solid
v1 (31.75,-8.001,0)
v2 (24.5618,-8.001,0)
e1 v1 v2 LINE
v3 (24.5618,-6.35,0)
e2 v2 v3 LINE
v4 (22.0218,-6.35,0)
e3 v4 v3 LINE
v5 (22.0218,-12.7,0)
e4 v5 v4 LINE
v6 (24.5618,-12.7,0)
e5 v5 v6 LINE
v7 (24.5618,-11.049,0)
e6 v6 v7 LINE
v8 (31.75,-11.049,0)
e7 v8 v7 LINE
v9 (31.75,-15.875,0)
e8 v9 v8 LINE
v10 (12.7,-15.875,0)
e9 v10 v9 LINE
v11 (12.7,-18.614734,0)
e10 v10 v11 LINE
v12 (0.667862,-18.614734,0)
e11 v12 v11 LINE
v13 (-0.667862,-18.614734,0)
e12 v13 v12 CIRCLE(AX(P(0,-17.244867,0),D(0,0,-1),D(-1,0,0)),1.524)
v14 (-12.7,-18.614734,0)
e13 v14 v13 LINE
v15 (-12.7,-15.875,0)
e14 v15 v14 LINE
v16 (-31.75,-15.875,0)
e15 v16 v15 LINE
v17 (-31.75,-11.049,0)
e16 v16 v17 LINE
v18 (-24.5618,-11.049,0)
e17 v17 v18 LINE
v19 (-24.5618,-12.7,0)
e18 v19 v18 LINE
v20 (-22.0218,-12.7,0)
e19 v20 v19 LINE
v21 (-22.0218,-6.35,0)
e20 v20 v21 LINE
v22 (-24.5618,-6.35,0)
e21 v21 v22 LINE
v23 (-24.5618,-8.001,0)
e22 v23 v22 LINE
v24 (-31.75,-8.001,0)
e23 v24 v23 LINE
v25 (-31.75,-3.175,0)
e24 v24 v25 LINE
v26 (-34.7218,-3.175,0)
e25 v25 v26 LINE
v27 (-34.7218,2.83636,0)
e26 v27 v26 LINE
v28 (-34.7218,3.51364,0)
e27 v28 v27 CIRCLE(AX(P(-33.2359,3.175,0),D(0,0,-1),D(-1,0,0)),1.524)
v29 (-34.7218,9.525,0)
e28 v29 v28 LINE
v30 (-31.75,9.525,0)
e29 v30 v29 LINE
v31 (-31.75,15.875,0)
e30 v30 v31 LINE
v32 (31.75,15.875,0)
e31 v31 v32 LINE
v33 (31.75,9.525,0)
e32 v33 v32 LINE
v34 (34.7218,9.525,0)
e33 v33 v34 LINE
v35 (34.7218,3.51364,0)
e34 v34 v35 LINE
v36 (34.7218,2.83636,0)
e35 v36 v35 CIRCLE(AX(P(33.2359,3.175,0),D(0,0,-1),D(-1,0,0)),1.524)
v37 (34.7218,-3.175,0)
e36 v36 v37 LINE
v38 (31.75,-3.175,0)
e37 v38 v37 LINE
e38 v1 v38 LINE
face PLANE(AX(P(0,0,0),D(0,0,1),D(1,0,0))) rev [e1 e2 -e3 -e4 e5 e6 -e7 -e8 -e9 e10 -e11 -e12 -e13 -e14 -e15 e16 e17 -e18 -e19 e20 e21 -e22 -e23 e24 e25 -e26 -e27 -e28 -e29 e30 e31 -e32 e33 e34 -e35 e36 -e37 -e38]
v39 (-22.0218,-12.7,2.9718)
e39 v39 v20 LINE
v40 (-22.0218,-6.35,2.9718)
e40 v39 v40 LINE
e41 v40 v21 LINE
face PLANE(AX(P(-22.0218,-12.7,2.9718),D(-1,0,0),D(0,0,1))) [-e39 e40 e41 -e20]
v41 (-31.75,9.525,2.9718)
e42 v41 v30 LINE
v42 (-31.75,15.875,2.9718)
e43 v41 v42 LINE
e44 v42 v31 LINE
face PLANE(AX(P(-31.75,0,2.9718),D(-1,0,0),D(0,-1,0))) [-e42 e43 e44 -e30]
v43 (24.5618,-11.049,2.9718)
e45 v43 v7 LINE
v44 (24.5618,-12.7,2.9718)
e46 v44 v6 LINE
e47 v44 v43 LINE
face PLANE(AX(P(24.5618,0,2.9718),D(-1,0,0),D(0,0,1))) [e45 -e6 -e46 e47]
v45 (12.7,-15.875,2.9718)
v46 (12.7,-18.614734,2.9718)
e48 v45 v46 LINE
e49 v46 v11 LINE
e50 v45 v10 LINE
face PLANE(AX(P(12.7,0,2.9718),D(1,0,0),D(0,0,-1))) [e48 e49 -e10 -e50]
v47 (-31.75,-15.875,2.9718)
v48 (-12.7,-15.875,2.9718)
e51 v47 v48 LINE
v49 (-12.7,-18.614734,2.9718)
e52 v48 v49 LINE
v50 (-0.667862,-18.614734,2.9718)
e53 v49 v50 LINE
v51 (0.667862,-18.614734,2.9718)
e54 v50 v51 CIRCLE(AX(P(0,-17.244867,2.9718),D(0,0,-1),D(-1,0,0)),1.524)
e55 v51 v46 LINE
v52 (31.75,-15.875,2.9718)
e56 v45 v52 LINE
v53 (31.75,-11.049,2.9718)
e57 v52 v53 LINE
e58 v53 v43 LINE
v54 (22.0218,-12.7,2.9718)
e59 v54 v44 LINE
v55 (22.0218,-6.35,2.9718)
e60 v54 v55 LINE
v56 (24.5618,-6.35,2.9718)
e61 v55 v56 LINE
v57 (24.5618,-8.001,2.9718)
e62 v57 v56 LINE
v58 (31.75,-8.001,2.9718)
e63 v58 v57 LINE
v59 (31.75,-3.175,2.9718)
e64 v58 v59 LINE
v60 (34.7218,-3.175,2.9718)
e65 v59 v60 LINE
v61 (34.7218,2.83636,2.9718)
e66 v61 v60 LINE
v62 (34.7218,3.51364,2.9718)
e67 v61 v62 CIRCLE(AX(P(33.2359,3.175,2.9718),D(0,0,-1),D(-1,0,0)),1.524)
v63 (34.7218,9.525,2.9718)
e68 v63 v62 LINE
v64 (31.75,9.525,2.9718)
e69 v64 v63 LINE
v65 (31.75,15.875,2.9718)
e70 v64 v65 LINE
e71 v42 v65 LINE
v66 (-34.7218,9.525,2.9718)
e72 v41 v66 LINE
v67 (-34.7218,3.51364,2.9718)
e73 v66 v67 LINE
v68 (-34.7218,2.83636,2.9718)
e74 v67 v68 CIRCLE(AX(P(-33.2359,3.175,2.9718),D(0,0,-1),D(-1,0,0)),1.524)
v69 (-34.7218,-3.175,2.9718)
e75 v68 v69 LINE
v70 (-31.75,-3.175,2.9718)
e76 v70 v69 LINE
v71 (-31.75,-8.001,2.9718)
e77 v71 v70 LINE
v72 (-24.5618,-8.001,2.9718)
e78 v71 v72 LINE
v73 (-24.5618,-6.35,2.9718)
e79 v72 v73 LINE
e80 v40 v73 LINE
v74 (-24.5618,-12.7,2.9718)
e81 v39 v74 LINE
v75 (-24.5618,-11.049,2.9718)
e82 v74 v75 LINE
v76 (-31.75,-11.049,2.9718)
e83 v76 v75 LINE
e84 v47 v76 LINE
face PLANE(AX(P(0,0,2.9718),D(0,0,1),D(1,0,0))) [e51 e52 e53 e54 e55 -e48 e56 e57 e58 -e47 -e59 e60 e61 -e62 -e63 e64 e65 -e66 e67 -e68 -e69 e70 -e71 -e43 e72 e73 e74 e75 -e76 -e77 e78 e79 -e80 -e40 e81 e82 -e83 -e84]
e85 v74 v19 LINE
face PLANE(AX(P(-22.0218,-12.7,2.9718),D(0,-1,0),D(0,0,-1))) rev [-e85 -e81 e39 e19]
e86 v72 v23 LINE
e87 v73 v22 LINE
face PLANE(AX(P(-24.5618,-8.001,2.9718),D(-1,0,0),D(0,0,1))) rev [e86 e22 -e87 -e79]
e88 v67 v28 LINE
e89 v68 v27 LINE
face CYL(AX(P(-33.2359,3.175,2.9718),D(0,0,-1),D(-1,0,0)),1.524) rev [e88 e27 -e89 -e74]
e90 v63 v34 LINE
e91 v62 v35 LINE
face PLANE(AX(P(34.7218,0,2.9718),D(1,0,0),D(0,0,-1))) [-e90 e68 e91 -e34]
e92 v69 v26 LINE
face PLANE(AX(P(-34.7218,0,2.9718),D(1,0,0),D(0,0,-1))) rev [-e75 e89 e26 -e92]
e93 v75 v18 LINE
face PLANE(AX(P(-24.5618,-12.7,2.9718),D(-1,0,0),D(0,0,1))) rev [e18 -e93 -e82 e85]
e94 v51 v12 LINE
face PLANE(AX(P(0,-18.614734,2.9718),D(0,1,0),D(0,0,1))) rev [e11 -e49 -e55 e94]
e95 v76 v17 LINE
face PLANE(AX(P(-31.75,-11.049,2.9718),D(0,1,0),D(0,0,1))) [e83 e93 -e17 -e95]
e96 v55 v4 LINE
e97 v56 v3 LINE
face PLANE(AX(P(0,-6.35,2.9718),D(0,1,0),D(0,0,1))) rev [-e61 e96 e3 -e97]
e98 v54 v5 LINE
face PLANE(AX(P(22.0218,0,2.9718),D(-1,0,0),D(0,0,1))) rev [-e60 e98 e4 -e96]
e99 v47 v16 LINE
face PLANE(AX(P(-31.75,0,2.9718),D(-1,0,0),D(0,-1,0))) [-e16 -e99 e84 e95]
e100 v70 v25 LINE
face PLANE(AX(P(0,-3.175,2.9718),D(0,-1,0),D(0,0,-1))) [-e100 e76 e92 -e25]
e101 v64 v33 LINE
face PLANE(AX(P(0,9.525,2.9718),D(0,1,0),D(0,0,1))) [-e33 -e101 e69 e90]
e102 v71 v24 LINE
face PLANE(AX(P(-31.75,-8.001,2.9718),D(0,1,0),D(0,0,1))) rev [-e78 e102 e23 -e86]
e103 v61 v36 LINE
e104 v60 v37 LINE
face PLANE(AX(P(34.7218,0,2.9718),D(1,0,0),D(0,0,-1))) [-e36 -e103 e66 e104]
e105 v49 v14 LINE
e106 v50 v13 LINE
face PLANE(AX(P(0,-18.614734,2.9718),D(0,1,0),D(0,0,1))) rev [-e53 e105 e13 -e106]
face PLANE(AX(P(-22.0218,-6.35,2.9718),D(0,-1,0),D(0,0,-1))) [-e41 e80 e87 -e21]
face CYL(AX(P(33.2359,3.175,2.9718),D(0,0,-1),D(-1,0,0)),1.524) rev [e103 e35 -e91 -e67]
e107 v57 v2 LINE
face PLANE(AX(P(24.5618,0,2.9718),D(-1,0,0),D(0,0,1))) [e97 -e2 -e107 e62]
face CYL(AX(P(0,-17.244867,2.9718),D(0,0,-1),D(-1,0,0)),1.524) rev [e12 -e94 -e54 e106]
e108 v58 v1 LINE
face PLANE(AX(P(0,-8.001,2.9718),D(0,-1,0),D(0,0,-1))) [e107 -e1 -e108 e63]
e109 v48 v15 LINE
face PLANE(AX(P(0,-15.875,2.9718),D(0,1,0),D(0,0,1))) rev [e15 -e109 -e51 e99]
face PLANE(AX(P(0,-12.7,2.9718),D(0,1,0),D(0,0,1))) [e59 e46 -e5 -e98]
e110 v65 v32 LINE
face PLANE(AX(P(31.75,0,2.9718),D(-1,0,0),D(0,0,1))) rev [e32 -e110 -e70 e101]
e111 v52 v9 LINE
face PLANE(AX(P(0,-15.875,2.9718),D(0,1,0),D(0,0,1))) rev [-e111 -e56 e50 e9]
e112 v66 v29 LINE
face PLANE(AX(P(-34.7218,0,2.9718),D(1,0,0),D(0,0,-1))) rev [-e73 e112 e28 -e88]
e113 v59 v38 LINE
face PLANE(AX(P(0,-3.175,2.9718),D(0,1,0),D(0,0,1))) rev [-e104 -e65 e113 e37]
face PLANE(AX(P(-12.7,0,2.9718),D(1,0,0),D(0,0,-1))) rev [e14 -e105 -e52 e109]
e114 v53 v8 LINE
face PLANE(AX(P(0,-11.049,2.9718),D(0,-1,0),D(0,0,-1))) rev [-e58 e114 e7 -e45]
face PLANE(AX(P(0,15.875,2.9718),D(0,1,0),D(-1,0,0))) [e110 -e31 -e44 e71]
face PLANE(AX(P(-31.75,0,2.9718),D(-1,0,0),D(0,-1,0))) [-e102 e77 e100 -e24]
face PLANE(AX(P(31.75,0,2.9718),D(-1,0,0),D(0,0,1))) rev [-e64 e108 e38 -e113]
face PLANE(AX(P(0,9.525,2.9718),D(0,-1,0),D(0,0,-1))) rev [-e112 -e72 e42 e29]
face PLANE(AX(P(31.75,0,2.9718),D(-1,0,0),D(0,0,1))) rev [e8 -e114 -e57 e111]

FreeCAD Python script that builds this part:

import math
import FreeCAD as App
import Part
import Sketcher
from FreeCAD import Vector
Q = App.Units.Quantity

doc = App.newDocument("Part")
body = doc.addObject("PartDesign::Body", "Body")

# Sketch on XY plane
sketch1 = body.newObject("Sketcher::SketchObject", "Sketch")
sketch1.AttachmentSupport = (doc.getObject("XY_Plane"), [""])
sketch1.MapMode = "FlatFace"
sketch1.addGeometry([
    Part.LineSegment(Vector(-34.7, 9.5, 0), Vector(-34.7, -3.2, 0)),  # 0
    Part.LineSegment(Vector(-34.7, -3.2, 0), Vector(-31.8, -3.2, 0)),  # 1
    Part.LineSegment(Vector(-31.8, -3.2, 0), Vector(-31.8, -15.9, 0)),  # 2
    Part.LineSegment(Vector(-31.8, -15.9, 0), Vector(-12.7, -15.9, 0)),  # 3
    Part.LineSegment(Vector(-12.7, -15.9, 0), Vector(-12.7, -18.6, 0)),  # 4
    Part.LineSegment(Vector(-12.7, -18.6, 0), Vector(12.7, -18.6, 0)),  # 5
    Part.LineSegment(Vector(12.7, -18.6, 0), Vector(12.7, -15.9, 0)),  # 6
    Part.LineSegment(Vector(12.7, -15.9, 0), Vector(31.8, -15.9, 0)),  # 7
    Part.LineSegment(Vector(31.8, -15.9, 0), Vector(31.8, -3.2, 0)),  # 8
    Part.LineSegment(Vector(31.8, -3.2, 0), Vector(34.7, -3.2, 0)),  # 9
    Part.LineSegment(Vector(34.7, -3.2, 0), Vector(34.7, 9.5, 0)),  # 10
    Part.LineSegment(Vector(34.7, 9.5, 0), Vector(31.8, 9.5, 0)),  # 11
    Part.LineSegment(Vector(31.8, 9.5, 0), Vector(31.8, 15.9, 0)),  # 12
    Part.LineSegment(Vector(31.8, 15.9, 0), Vector(-31.8, 15.9, 0)),  # 13
    Part.LineSegment(Vector(-31.8, 15.9, 0), Vector(-31.8, 9.5, 0)),  # 14
    Part.LineSegment(Vector(-31.8, 9.5, 0), Vector(-34.7, 9.5, 0)),  # 15
], False)
sketch1.addConstraint([
    Sketcher.Constraint("Coincident", 0, 2, 1, 1),
    Sketcher.Constraint("Coincident", 1, 2, 2, 1),
    Sketcher.Constraint("Coincident", 2, 2, 3, 1),
    Sketcher.Constraint("Coincident", 3, 2, 4, 1),
    Sketcher.Constraint("Coincident", 4, 2, 5, 1),
    Sketcher.Constraint("Coincident", 5, 2, 6, 1),
    Sketcher.Constraint("Coincident", 6, 2, 7, 1),
    Sketcher.Constraint("Coincident", 7, 2, 8, 1),
    Sketcher.Constraint("Coincident", 8, 2, 9, 1),
    Sketcher.Constraint("Coincident", 9, 2, 10, 1),
    Sketcher.Constraint("Coincident", 10, 2, 11, 1),
    Sketcher.Constraint("Coincident", 11, 2, 12, 1),
    Sketcher.Constraint("Coincident", 12, 2, 13, 1),
    Sketcher.Constraint("Coincident", 13, 2, 14, 1),
    Sketcher.Constraint("Coincident", 14, 2, 15, 1),
    Sketcher.Constraint("Coincident", 15, 2, 0, 1),
    Sketcher.Constraint("Vertical", 0),
    Sketcher.Constraint("Horizontal", 1),
    Sketcher.Constraint("Vertical", 2),
    Sketcher.Constraint("Horizontal", 3),
    Sketcher.Constraint("Vertical", 4),
    Sketcher.Constraint("Horizontal", 5),
    Sketcher.Constraint("Vertical", 6),
    Sketcher.Constraint("Horizontal", 7),
    Sketcher.Constraint("Vertical", 8),
    Sketcher.Constraint("Horizontal", 9),
    Sketcher.Constraint("Vertical", 10),
    Sketcher.Constraint("Horizontal", 11),
    Sketcher.Constraint("Vertical", 12),
    Sketcher.Constraint("Horizontal", 13),
    Sketcher.Constraint("Vertical", 14),
    Sketcher.Constraint("Horizontal", 15),
    Sketcher.Constraint("Symmetric", 2, 2, 12, 2, -1, 1),
    Sketcher.Constraint("Symmetric", 7, 2, 13, 2, -1, 1),
    Sketcher.Constraint("Symmetric", 1, 2, 8, 2, -2),
    Sketcher.Constraint("Symmetric", 10, 2, 15, 2, -2),
    Sketcher.Constraint("Equal", 3, 7),
    Sketcher.Constraint("Equal", 0, 2),
    Sketcher.Constraint("DistanceX", 5, 1, 5, 2, Q("1 in")),
    Sketcher.Constraint("DistanceX", 13, 2, 13, 1, Q("2.5 in")),
    Sketcher.Constraint("DistanceY", 0, 2, 0, 1, Q("0.5 in")),
    Sketcher.Constraint("DistanceY", 12, 1, 12, 2, Q("0.25 in")),
    Sketcher.Constraint("DistanceX", 1, 1, 1, 2, Q("0.117 in")),
    Sketcher.Constraint("DistanceY", 4, 2, 4, 1, Q("2.739734 mm")),
])
pad1 = body.newObject("PartDesign::Pad", "Pad")
pad1.Profile = sketch1
pad1.Length = Q("0.117 in")

# Sketch on XY plane
sketch2 = body.newObject("Sketcher::SketchObject", "Sketch001")
sketch2.AttachmentSupport = (doc.getObject("XY_Plane"), [""])
sketch2.MapMode = "FlatFace"
sketch2.addGeometry([
    Part.ArcOfCircle(Part.Circle(Vector(-33.24, 3.17, 0), Vector(0, 0, 1), 1.52), math.radians(180), math.radians(192.84)),  # 0
    Part.ArcOfCircle(Part.Circle(Vector(-33.24, 3.18, 0), Vector(0, 0, 1), 1.52), math.radians(167.16), math.radians(180)),  # 1
    Part.ArcOfCircle(Part.Circle(Vector(-33.24, 3.17, 0), Vector(0, 0, 1), 1.52), math.radians(-167), math.radians(167)),  # 2
    Part.ArcOfCircle(Part.Circle(Vector(33.24, 3.17, 0), Vector(0, 0, 1), 1.52), math.radians(180), math.radians(347)),  # 3
    Part.ArcOfCircle(Part.Circle(Vector(33.24, 3.17, 0), Vector(0, 0, 1), 1.52), math.radians(13), math.radians(180)),  # 4
    Part.ArcOfCircle(Part.Circle(Vector(33.24, 3.17, 0), Vector(0, 0, 1), 1.52), math.radians(-13), math.radians(13)),  # 5
    Part.LineSegment(Vector(31.75, -8, 0), Vector(31.75, -11.05, 0)),  # 6
    Part.LineSegment(Vector(31.75, -11.05, 0), Vector(24.56, -11.05, 0)),  # 7
    Part.LineSegment(Vector(24.56, -11.05, 0), Vector(24.56, -12.7, 0)),  # 8
    Part.LineSegment(Vector(24.56, -12.7, 0), Vector(22.02, -12.7, 0)),  # 9
    Part.LineSegment(Vector(22.02, -12.7, 0), Vector(22.02, -6.35, 0)),  # 10
    Part.LineSegment(Vector(22.02, -6.35, 0), Vector(24.56, -6.35, 0)),  # 11
    Part.LineSegment(Vector(24.56, -6.35, 0), Vector(24.56, -8, 0)),  # 12
    Part.LineSegment(Vector(24.56, -8, 0), Vector(31.75, -8, 0)),  # 13
    Part.ArcOfCircle(Part.Circle(Vector(0, -17.24, 0), Vector(0, 0, 1), 1.52), math.radians(-180), math.radians(-116)),  # 14
    Part.ArcOfCircle(Part.Circle(Vector(0, -17.24, 0), Vector(0, 0, 1), 1.52), math.radians(-64), math.radians(180)),  # 15
    Part.ArcOfCircle(Part.Circle(Vector(0, -17.24, 0), Vector(0, 0, 1), 1.52), math.radians(-116), math.radians(-64)),  # 16
    Part.LineSegment(Vector(-24.56, -11.05, 0), Vector(-31.75, -11.05, 0)),  # 17
    Part.LineSegment(Vector(-31.75, -11.05, 0), Vector(-31.75, -8, 0)),  # 18
    Part.LineSegment(Vector(-31.75, -8, 0), Vector(-24.56, -8, 0)),  # 19
    Part.LineSegment(Vector(-24.56, -8, 0), Vector(-24.56, -6.35, 0)),  # 20
    Part.LineSegment(Vector(-24.56, -6.35, 0), Vector(-22.02, -6.35, 0)),  # 21
    Part.LineSegment(Vector(-22.02, -6.35, 0), Vector(-22.02, -12.7, 0)),  # 22
    Part.LineSegment(Vector(-22.02, -12.7, 0), Vector(-24.56, -12.7, 0)),  # 23
    Part.LineSegment(Vector(-24.56, -12.7, 0), Vector(-24.56, -11.05, 0)),  # 24
], False)
sketch2.addConstraint([
    Sketcher.Constraint("Tangent", 0, 1, 1, 2),
    Sketcher.Constraint("Tangent", 1, 1, 2, 2),
    Sketcher.Constraint("Tangent", 2, 1, 0, 2),
    Sketcher.Constraint("Tangent", 3, 1, 4, 2),
    Sketcher.Constraint("Tangent", 4, 1, 5, 2),
    Sketcher.Constraint("Tangent", 5, 1, 3, 2),
    Sketcher.Constraint("Coincident", 6, 2, 7, 1),
    Sketcher.Constraint("Coincident", 7, 2, 8, 1),
    Sketcher.Constraint("Coincident", 8, 2, 9, 1),
    Sketcher.Constraint("Coincident", 9, 2, 10, 1),
    Sketcher.Constraint("Coincident", 10, 2, 11, 1),
    Sketcher.Constraint("Coincident", 11, 2, 12, 1),
    Sketcher.Constraint("Coincident", 12, 2, 13, 1),
    Sketcher.Constraint("Coincident", 13, 2, 6, 1),
    Sketcher.Constraint("Tangent", 14, 1, 15, 2),
    Sketcher.Constraint("Tangent", 15, 1, 16, 2),
    Sketcher.Constraint("Tangent", 16, 1, 14, 2),
    Sketcher.Constraint("Coincident", 17, 2, 18, 1),
    Sketcher.Constraint("Coincident", 18, 2, 19, 1),
    Sketcher.Constraint("Coincident", 19, 2, 20, 1),
    Sketcher.Constraint("Coincident", 20, 2, 21, 1),
    Sketcher.Constraint("Coincident", 21, 2, 22, 1),
    Sketcher.Constraint("Coincident", 22, 2, 23, 1),
    Sketcher.Constraint("Coincident", 23, 2, 24, 1),
    Sketcher.Constraint("Coincident", 24, 2, 17, 1),
    Sketcher.Constraint("Vertical", 6),
    Sketcher.Constraint("Horizontal", 7),
    Sketcher.Constraint("Vertical", 8),
    Sketcher.Constraint("Horizontal", 9),
    Sketcher.Constraint("Vertical", 10),
    Sketcher.Constraint("Horizontal", 11),
    Sketcher.Constraint("Vertical", 12),
    Sketcher.Constraint("Horizontal", 13),
    Sketcher.Constraint("Horizontal", 17),
    Sketcher.Constraint("Vertical", 18),
    Sketcher.Constraint("Horizontal", 19),
    Sketcher.Constraint("Vertical", 20),
    Sketcher.Constraint("Horizontal", 21),
    Sketcher.Constraint("Vertical", 22),
    Sketcher.Constraint("Horizontal", 23),
    Sketcher.Constraint("Vertical", 24),
    Sketcher.Constraint("Equal", 2, 3),
    Sketcher.Constraint("Equal", 5, 14),
    Sketcher.Constraint("Symmetric", 0, 3, 3, 3, -2),
    Sketcher.Constraint("Symmetric", 15, 1, 16, 1, -2),
    Sketcher.Constraint("Symmetric", 6, 2, 17, 2, -2),
    Sketcher.Constraint("Symmetric", 12, 2, 19, 2, -2),
    Sketcher.Constraint("Symmetric", 10, 2, 21, 2, -2),
    Sketcher.Constraint("Symmetric", 8, 2, 23, 2, -2),
    Sketcher.Constraint("Horizontal", 5, 3, 0, 1),
    Sketcher.Constraint("Horizontal", 0, 1, 3, 1),
    Sketcher.Constraint("Horizontal", 1, 1, 4, 1),
    Sketcher.Constraint("Horizontal", 2, 1, 5, 1),
    Sketcher.Constraint("Horizontal", 16, 3, 14, 1),
    Sketcher.Constraint("Vertical", 1, 1, 2, 1),
    Sketcher.Constraint("Vertical", 8, 2, 11, 2),
    Sketcher.Constraint("Equal", 8, 12),
    Sketcher.Constraint("Radius", 0, Q("0.06 in")),
    Sketcher.Constraint("DistanceX", 9, 2, 9, 1, Q("0.1 in")),
    Sketcher.Constraint("DistanceY", 6, 2, 6, 1, Q("0.12 in")),
    Sketcher.Constraint("DistanceY", 10, 1, 10, 2, Q("0.25 in")),
    Sketcher.Constraint("DistanceY", 8, 2, -1, 1, Q("0.5 in")),
    Sketcher.Constraint("DistanceX", 7, 2, 7, 1, Q("0.283 in")),
    Sketcher.Constraint("DistanceX", -1, 1, 6, 2, Q("1.25 in")),
    Sketcher.Constraint("DistanceY", 6, 2, 3, 1, Q("0.56 in")),
    Sketcher.Constraint("DistanceX", 1, 1, -1, 1, Q("1.367 in")),
    Sketcher.Constraint("DistanceX", 2, 3, 3, 3, Q("2.617 in")),
    Sketcher.Constraint("DistanceY", 14, 3, -1, 1, Q("17.244867 mm")),
    Sketcher.Constraint("DistanceX", -1, 1, 15, 1, Q("0.667862 mm")),
])
pocket1 = body.newObject("PartDesign::Pocket", "Pocket")
pocket1.Profile = sketch2
pocket1.Type = "ThroughAll"
pocket1.Reversed = True

doc.recompute()
